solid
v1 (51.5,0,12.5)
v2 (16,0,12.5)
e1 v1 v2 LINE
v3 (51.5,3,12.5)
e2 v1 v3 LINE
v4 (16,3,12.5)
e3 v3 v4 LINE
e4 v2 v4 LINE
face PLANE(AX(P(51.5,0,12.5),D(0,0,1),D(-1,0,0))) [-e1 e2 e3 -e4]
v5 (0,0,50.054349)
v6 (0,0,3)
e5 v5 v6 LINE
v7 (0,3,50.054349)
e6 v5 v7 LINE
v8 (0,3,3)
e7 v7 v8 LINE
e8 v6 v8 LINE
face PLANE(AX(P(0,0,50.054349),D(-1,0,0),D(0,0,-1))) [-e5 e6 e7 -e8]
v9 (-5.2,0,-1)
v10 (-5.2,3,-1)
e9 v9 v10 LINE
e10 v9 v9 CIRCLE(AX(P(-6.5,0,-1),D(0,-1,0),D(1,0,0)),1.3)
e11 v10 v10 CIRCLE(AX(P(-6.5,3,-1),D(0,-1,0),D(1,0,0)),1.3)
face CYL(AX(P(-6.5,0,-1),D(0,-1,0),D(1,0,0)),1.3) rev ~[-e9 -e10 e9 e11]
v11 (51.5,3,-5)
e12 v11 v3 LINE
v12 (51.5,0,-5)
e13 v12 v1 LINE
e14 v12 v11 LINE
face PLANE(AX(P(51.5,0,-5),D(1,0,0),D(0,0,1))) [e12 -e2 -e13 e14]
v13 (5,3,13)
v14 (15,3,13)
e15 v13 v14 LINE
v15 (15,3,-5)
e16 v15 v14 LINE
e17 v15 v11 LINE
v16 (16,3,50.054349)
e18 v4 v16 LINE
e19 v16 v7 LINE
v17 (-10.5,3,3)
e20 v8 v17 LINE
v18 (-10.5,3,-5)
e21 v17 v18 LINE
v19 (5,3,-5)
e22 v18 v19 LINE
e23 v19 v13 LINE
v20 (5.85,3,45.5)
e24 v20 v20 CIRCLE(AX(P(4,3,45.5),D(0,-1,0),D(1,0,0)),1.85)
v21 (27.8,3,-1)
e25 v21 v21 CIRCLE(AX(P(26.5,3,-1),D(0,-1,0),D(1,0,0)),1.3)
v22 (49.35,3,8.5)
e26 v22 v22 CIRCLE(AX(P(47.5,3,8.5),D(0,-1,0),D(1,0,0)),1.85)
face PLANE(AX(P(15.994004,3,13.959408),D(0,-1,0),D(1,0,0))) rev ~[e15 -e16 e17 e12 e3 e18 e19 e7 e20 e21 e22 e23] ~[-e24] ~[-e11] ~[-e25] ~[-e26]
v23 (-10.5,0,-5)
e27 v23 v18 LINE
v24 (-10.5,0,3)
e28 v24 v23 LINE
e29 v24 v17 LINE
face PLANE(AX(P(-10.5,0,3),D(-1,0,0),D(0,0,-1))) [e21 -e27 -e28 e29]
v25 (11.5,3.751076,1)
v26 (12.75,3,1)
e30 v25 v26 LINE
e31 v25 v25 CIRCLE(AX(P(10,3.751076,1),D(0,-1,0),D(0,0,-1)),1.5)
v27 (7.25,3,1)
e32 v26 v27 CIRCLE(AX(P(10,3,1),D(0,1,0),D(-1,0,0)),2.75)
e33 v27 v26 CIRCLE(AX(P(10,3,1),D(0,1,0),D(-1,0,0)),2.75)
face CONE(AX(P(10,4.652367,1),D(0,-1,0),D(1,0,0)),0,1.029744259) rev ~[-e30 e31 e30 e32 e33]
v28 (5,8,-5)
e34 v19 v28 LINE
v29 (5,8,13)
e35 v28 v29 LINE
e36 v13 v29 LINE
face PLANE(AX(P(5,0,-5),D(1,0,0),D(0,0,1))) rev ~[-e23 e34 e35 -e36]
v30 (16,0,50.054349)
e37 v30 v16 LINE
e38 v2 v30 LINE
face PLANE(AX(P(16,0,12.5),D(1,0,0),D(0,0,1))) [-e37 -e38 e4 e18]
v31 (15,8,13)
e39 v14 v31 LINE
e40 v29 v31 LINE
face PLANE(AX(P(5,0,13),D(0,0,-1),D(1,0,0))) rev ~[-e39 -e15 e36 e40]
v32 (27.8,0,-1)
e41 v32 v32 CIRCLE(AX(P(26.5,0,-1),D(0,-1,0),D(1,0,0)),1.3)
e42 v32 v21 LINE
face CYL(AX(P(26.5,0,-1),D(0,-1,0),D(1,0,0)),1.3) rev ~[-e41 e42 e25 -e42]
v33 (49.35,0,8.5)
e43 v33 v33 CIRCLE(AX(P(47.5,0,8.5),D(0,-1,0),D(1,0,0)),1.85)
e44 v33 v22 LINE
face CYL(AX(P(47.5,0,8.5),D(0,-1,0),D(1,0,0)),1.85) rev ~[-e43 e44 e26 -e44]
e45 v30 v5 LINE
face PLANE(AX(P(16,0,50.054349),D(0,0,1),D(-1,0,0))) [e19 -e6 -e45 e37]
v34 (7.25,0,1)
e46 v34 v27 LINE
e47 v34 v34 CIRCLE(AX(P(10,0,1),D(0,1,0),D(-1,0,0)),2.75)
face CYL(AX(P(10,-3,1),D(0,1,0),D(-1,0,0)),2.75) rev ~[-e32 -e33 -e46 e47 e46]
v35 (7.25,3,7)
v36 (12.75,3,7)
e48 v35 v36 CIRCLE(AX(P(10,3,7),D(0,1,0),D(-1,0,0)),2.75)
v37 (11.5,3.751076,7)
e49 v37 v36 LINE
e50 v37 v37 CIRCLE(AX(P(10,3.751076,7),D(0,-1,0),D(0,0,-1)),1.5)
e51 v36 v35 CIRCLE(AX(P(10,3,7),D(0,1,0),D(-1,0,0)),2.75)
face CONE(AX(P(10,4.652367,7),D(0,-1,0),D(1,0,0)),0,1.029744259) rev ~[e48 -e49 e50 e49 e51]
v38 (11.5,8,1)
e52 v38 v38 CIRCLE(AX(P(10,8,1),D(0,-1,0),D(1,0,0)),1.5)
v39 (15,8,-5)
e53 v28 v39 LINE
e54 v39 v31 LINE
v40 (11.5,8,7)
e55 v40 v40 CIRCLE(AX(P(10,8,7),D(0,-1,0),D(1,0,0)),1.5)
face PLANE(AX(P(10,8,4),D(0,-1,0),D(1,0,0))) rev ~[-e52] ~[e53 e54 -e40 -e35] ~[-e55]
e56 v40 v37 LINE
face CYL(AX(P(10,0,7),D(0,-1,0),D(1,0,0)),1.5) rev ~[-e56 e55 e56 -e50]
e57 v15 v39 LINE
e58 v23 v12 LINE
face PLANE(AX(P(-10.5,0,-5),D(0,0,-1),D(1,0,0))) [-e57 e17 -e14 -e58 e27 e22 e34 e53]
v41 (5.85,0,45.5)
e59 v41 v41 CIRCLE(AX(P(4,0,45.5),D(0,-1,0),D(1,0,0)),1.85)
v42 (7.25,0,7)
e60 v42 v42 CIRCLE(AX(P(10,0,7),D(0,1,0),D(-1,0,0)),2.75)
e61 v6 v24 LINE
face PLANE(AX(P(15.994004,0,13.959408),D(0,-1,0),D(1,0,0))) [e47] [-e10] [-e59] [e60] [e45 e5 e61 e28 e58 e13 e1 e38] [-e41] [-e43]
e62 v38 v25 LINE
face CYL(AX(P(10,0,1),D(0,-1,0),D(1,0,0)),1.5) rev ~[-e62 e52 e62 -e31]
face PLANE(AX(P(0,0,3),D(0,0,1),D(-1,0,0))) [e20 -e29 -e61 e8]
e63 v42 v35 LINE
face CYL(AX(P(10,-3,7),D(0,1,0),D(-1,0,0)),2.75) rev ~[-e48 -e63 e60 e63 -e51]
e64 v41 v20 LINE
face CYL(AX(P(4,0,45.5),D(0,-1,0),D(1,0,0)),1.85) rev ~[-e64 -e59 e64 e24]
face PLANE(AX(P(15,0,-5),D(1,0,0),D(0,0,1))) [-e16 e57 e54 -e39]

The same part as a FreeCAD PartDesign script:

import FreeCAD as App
import Part
import Sketcher

V = App.Vector


def add_polygon(sketch, points):
    """Adds a closed chain of lines whose ends are joined by coincident constraints."""
    first, n = sketch.GeometryCount, len(points)
    for a, b in zip(points, points[1:] + points[:1]):
        sketch.addGeometry(Part.LineSegment(App.Vector(*a, 0), App.Vector(*b, 0)), False)
    for i in range(n):
        sketch.addConstraint(Sketcher.Constraint("Coincident", first + i, 2, first + (i + 1) % n, 1))

doc = App.newDocument("Part")
body = doc.addObject("PartDesign::Body", "Body")

# Sketch on XZ plane
sketch1 = doc.addObject("Sketcher::SketchObject", "Sketch")
body.addObject(sketch1)
sketch1.AttachmentSupport = (doc.XZ_Plane, [""])
sketch1.MapMode = "FlatFace"
add_polygon(sketch1, [(0, 3), (-10.5, 3), (-10.5, -5), (51.5, -5), (51.5, 12.5), (16, 12.5), (16, 50.054349), (0, 50.054349)])  # lines 0-7
sketch1.addGeometry(Part.Circle(V(-6.5, -1, 0), V(0, 0, 1), 1.3), False)  # 8
sketch1.addGeometry(Part.Circle(V(10, 1, 0), V(0, 0, 1), 1.5), False)  # 9
sketch1.addGeometry(Part.Circle(V(10, 7, 0), V(0, 0, 1), 1.5), False)  # 10
sketch1.addGeometry(Part.Circle(V(26.5, -1, 0), V(0, 0, 1), 1.3), False)  # 11
sketch1.addGeometry(Part.Circle(V(47.5, 8.5, 0), V(0, 0, 1), 1.85), False)  # 12
sketch1.addGeometry(Part.Circle(V(4, 45.5, 0), V(0, 0, 1), 1.85), False)  # 13
sketch1.addConstraint([
    Sketcher.Constraint("Horizontal", 0),
    Sketcher.Constraint("Vertical", 1),
    Sketcher.Constraint("Horizontal", 2),
    Sketcher.Constraint("Vertical", 3),
    Sketcher.Constraint("Horizontal", 4),
    Sketcher.Constraint("Vertical", 5),
    Sketcher.Constraint("Horizontal", 6),
    Sketcher.Constraint("Vertical", 7),
    Sketcher.Constraint("Equal", 9, 10),
    Sketcher.Constraint("Equal", 8, 11),
    Sketcher.Constraint("Equal", 12, 13),
    Sketcher.Constraint("PointOnObject", 6, 2, -2),
    Sketcher.Constraint("Horizontal", 8, 3, 11, 3),
    Sketcher.Constraint("Vertical", 9, 3, 10, 3),
    Sketcher.Constraint("Diameter", 9, 3.0),
    Sketcher.Constraint("Diameter", 8, 2.6),
    Sketcher.Constraint("Diameter", 12, 3.7),
    Sketcher.Constraint("DistanceX", 2, 1, 2, 2, 62.0),
    Sketcher.Constraint("DistanceX", 6, 2, 6, 1, 16.0),
    Sketcher.Constraint("DistanceY", 1, 2, 1, 1, 8.0),
    Sketcher.Constraint("DistanceX", 0, 2, 0, 1, 10.5),
    Sketcher.Constraint("DistanceY", 3, 1, 3, 2, 17.5),
    Sketcher.Constraint("DistanceY", 8, 3, -1, 1, 1.0),
    Sketcher.Constraint("DistanceX", -1, 1, 9, 3, 10.0),
    Sketcher.Constraint("DistanceY", -1, 1, 9, 3, 1.0),
    Sketcher.Constraint("DistanceY", -1, 1, 10, 3, 7.0),
    Sketcher.Constraint("DistanceX", -1, 1, 13, 3, 4.0),
    Sketcher.Constraint("DistanceY", -1, 1, 0, 2, 3.0),
    Sketcher.Constraint("DistanceX", 8, 3, 11, 3, 33.0),
    Sketcher.Constraint("DistanceX", 11, 3, 12, 3, 21.0),
    Sketcher.Constraint("DistanceY", 12, 3, 13, 3, 37.0),
    Sketcher.Constraint("DistanceX", 0, 2, 8, 3, 4.0),
    Sketcher.Constraint("DistanceY", 12, 3, 3, 2, 4.0),
    Sketcher.Constraint("DistanceY", 5, 1, 5, 2, 37.554349),
])
pad1 = doc.addObject("PartDesign::Pad", "Pad")
body.addObject(pad1)
pad1.Profile = sketch1
pad1.Length = 3
pad1.Reversed = True

# Sketch on XZ plane
sketch2 = doc.addObject("Sketcher::SketchObject", "Sketch001")
body.addObject(sketch2)
sketch2.AttachmentSupport = (doc.XZ_Plane, [""])
sketch2.MapMode = "FlatFace"
add_polygon(sketch2, [(5, 13), (5, -5), (15, -5), (15, 13)])  # lines 0-3
sketch2.addGeometry(Part.Circle(V(10, 1, 0), V(0, 0, 1), 1.5), False)  # 4
sketch2.addGeometry(Part.Circle(V(10, 7, 0), V(0, 0, 1), 1.5), False)  # 5
sketch2.addConstraint([
    Sketcher.Constraint("Vertical", 0),
    Sketcher.Constraint("Horizontal", 1),
    Sketcher.Constraint("Vertical", 2),
    Sketcher.Constraint("Horizontal", 3),
    Sketcher.Constraint("Equal", 4, 5),
    Sketcher.Constraint("Vertical", 4, 3, 5, 3),
    Sketcher.Constraint("Diameter", 4, 3.0),
    Sketcher.Constraint("DistanceX", 1, 1, 1, 2, 10.0),
    Sketcher.Constraint("DistanceY", 0, 2, 0, 1, 18.0),
    Sketcher.Constraint("DistanceX", -1, 1, 4, 3, 10.0),
    Sketcher.Constraint("DistanceY", -1, 1, 4, 3, 1.0),
    Sketcher.Constraint("DistanceY", -1, 1, 5, 3, 7.0),
    Sketcher.Constraint("DistanceX", -1, 1, 0, 2, 5.0),
    Sketcher.Constraint("DistanceY", 0, 2, -1, 1, 5.0),
])
pad2 = doc.addObject("PartDesign::Pad", "Pad001")
body.addObject(pad2)
pad2.Profile = sketch2
pad2.Length = 8
pad2.Reversed = True

# Sketch on XZ plane
sketch3 = doc.addObject("Sketcher::SketchObject", "Sketch002")
body.addObject(sketch3)
sketch3.AttachmentSupport = (doc.XZ_Plane, [""])
sketch3.MapMode = "FlatFace"
sketch3.addGeometry([
    Part.Circle(V(10, 7, 0), V(0, 0, 1), 2.75),
    Part.Circle(V(10, 1, 0), V(0, 0, 1), 2.75),
], False)
sketch3.addConstraint([
    Sketcher.Constraint("Equal", 0, 1),
    Sketcher.Constraint("Vertical", 0, 3, 1, 3),
    Sketcher.Constraint("Diameter", 0, 5.5),
    Sketcher.Constraint("DistanceX", -1, 1, 0, 3, 10.0),
    Sketcher.Constraint("DistanceY", -1, 1, 0, 3, 7.0),
    Sketcher.Constraint("DistanceY", -1, 1, 1, 3, 1.0),
])
doc.recompute()
hole = doc.addObject("PartDesign::Hole", "Hole")
body.addObject(hole)
hole.Profile = sketch3
hole.ThreadType = "None"
hole.Diameter = 5.5
hole.DepthType = "Dimension"
hole.Depth = 3
hole.DrillPoint = "Angled"
hole.DrillPointAngle = 118

doc.recompute()
